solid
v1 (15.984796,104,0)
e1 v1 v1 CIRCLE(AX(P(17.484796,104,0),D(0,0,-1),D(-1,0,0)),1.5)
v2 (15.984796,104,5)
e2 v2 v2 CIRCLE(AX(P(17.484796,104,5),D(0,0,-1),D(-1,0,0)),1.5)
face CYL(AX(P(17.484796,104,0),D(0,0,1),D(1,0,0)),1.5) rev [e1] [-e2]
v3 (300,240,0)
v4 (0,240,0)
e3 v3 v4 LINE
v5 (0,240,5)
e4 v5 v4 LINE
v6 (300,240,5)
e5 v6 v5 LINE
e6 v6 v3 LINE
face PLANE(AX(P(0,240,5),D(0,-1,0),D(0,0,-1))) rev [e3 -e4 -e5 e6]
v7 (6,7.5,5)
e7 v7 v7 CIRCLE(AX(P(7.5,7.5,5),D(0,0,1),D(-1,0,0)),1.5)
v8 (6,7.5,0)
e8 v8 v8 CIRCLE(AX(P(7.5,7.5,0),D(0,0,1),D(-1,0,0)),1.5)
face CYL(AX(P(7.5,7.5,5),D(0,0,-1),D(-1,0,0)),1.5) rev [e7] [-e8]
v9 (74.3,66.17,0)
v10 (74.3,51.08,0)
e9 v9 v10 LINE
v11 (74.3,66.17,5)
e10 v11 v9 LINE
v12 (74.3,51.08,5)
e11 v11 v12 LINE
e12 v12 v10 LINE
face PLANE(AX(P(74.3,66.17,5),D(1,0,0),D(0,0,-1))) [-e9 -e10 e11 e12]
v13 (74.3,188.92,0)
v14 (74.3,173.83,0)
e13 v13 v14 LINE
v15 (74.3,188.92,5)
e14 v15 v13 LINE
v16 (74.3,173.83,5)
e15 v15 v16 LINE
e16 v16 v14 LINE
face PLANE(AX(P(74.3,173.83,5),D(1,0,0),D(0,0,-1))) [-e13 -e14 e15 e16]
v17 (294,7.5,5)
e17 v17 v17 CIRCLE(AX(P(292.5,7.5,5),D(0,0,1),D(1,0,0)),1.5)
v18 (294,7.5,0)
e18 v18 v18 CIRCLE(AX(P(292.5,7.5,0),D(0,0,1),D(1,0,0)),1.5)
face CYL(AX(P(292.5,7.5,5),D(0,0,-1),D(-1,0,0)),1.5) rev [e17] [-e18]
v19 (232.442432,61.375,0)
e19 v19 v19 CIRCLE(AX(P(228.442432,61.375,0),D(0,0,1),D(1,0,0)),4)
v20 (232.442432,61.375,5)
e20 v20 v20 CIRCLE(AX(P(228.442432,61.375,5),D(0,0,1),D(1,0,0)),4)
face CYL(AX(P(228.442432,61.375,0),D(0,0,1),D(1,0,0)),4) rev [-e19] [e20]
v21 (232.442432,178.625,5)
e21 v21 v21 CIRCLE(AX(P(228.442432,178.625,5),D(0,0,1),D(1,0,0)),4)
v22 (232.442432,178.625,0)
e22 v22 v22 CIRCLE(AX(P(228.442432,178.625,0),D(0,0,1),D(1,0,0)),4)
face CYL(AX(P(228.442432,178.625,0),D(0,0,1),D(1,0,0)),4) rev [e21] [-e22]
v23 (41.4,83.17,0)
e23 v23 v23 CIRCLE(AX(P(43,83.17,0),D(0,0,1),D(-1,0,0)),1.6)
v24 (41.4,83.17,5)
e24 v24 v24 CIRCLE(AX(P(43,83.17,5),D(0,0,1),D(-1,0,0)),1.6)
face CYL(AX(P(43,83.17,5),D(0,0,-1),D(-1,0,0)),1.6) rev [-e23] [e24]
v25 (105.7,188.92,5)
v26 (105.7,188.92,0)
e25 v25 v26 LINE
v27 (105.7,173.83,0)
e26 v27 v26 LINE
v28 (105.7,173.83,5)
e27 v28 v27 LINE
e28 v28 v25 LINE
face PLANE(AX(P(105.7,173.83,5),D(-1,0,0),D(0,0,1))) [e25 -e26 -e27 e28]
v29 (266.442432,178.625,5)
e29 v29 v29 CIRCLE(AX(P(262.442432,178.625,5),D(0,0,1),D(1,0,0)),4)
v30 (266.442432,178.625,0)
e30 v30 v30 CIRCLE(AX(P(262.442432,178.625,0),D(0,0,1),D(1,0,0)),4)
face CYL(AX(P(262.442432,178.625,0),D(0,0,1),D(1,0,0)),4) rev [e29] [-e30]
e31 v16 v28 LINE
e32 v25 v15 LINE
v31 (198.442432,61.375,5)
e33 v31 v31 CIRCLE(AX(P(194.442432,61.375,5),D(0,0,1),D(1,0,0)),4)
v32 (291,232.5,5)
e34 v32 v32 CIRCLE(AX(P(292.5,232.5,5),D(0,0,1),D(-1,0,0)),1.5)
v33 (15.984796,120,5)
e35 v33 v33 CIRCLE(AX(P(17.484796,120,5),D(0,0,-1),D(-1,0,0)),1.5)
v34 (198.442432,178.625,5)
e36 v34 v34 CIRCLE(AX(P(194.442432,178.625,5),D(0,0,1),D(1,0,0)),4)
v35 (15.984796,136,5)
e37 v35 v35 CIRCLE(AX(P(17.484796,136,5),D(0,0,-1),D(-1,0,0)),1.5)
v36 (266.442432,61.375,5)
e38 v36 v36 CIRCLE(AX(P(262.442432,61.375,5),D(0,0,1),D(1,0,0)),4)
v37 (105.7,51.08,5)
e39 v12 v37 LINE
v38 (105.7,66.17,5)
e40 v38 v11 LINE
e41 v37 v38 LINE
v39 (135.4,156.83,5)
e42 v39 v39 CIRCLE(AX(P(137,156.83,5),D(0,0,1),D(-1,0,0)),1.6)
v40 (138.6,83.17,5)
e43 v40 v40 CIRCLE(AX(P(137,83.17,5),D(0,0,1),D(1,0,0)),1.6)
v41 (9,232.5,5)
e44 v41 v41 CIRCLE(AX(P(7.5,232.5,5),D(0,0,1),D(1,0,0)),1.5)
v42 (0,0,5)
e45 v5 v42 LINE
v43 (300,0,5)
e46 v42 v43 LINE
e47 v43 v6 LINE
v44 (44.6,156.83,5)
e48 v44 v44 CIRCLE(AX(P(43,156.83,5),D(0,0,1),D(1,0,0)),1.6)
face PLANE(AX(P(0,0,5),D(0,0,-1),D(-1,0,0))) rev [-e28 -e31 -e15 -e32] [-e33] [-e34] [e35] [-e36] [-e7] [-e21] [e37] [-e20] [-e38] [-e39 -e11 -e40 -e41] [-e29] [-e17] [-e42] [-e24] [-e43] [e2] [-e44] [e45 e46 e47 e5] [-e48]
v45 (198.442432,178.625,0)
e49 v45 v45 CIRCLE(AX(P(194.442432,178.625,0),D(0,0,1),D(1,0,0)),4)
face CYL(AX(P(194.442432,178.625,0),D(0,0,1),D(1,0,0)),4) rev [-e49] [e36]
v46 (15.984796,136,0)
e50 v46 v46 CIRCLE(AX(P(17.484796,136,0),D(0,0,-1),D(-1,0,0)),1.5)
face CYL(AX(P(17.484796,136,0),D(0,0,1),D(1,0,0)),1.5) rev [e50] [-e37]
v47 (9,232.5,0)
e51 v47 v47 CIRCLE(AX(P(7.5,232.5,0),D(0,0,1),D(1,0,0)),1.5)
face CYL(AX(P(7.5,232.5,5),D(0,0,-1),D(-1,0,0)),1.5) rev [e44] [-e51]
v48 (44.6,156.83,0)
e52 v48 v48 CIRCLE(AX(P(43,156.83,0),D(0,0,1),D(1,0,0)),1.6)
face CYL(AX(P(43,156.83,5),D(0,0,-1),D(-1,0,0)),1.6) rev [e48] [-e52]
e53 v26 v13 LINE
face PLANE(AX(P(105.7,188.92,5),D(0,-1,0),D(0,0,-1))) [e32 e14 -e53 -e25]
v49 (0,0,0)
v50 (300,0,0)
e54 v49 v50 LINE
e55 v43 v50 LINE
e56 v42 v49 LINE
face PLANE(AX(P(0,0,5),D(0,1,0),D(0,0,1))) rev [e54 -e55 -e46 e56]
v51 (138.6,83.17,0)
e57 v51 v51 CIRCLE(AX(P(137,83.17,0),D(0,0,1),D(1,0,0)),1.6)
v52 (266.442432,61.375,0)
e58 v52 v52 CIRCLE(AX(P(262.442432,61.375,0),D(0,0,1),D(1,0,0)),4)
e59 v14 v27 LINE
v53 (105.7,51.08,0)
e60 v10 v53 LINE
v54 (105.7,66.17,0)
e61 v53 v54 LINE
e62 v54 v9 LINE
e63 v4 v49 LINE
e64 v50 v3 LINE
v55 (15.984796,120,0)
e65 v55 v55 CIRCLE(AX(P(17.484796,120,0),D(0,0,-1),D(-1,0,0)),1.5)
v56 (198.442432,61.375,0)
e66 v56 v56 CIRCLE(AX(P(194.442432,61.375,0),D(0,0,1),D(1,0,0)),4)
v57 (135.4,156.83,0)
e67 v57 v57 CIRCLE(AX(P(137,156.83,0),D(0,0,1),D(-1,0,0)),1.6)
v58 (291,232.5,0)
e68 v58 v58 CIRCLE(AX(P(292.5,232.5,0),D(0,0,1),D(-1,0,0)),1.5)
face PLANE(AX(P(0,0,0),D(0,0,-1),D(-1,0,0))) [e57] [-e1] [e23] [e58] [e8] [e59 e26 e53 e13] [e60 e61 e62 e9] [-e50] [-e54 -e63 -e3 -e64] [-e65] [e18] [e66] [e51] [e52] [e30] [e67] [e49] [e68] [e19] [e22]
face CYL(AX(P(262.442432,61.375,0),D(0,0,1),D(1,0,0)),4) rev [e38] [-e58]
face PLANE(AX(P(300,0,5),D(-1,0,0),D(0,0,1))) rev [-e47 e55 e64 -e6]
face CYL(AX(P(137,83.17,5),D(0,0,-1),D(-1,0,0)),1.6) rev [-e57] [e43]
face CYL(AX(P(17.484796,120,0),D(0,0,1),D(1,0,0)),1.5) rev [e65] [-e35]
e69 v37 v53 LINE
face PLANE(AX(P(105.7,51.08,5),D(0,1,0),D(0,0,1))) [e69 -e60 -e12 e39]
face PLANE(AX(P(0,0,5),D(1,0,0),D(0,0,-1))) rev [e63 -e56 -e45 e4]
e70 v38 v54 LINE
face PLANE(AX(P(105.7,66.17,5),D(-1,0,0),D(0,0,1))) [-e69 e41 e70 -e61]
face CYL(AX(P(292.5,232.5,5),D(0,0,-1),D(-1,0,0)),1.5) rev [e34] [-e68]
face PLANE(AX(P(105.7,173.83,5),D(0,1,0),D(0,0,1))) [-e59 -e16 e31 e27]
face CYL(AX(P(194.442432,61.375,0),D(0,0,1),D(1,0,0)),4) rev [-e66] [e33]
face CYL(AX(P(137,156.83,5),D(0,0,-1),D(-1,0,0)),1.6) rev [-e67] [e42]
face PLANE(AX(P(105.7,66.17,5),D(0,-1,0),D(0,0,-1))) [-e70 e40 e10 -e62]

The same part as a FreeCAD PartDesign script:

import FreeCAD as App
import Part
import Sketcher
from FreeCAD import Vector

doc = App.newDocument("Part")
body = doc.addObject("PartDesign::Body", "Body")

# Sketch on XY plane
sketch1 = body.newObject("Sketcher::SketchObject", "Sketch")
sketch1.AttachmentSupport = (doc.getObject("XY_Plane"), [""])
sketch1.MapMode = "FlatFace"
sketch1.addGeometry([
    Part.LineSegment(Vector(0, 240, 0), Vector(0, 0, 0)),  # 0
    Part.LineSegment(Vector(0, 0, 0), Vector(300, 0, 0)),  # 1
    Part.LineSegment(Vector(300, 0, 0), Vector(300, 240, 0)),  # 2
    Part.LineSegment(Vector(300, 240, 0), Vector(0, 240, 0)),  # 3
    Part.Circle(Vector(7.5, 7.5, 0), Vector(0, 0, 1), 1.5),  # 4
    Part.LineSegment(Vector(105.7, 51.1, 0), Vector(74.3, 51.1, 0)),  # 5
    Part.LineSegment(Vector(74.3, 51.1, 0), Vector(74.3, 66.2, 0)),  # 6
    Part.LineSegment(Vector(74.3, 66.2, 0), Vector(105.7, 66.2, 0)),  # 7
    Part.LineSegment(Vector(105.7, 66.2, 0), Vector(105.7, 51.1, 0)),  # 8
    Part.Circle(Vector(43, 83.2, 0), Vector(0, 0, 1), 1.6),  # 9
    Part.Circle(Vector(137, 83.2, 0), Vector(0, 0, 1), 1.6),  # 10
    Part.Circle(Vector(292.5, 7.5, 0), Vector(0, 0, 1), 1.5),  # 11
    Part.Circle(Vector(43, 156.8, 0), Vector(0, 0, 1), 1.6),  # 12
    Part.Circle(Vector(137, 156.8, 0), Vector(0, 0, 1), 1.6),  # 13
    Part.Circle(Vector(7.5, 232.5, 0), Vector(0, 0, 1), 1.5),  # 14
    Part.LineSegment(Vector(105.7, 173.8, 0), Vector(74.3, 173.8, 0)),  # 15
    Part.LineSegment(Vector(74.3, 173.8, 0), Vector(74.3, 188.9, 0)),  # 16
    Part.LineSegment(Vector(74.3, 188.9, 0), Vector(105.7, 188.9, 0)),  # 17
    Part.LineSegment(Vector(105.7, 188.9, 0), Vector(105.7, 173.8, 0)),  # 18
    Part.Circle(Vector(292.5, 232.5, 0), Vector(0, 0, 1), 1.5),  # 19
], False)
sketch1.addConstraint([
    Sketcher.Constraint("Coincident", 0, 2, 1, 1),
    Sketcher.Constraint("Coincident", 1, 2, 2, 1),
    Sketcher.Constraint("Coincident", 2, 2, 3, 1),
    Sketcher.Constraint("Coincident", 3, 2, 0, 1),
    Sketcher.Constraint("Coincident", 5, 2, 6, 1),
    Sketcher.Constraint("Coincident", 6, 2, 7, 1),
    Sketcher.Constraint("Coincident", 7, 2, 8, 1),
    Sketcher.Constraint("Coincident", 8, 2, 5, 1),
    Sketcher.Constraint("Coincident", 15, 2, 16, 1),
    Sketcher.Constraint("Coincident", 16, 2, 17, 1),
    Sketcher.Constraint("Coincident", 17, 2, 18, 1),
    Sketcher.Constraint("Coincident", 18, 2, 15, 1),
    Sketcher.Constraint("Vertical", 0),
    Sketcher.Constraint("Horizontal", 1),
    Sketcher.Constraint("Vertical", 2),
    Sketcher.Constraint("Horizontal", 3),
    Sketcher.Constraint("Horizontal", 5),
    Sketcher.Constraint("Vertical", 6),
    Sketcher.Constraint("Horizontal", 7),
    Sketcher.Constraint("Vertical", 8),
    Sketcher.Constraint("Horizontal", 15),
    Sketcher.Constraint("Vertical", 16),
    Sketcher.Constraint("Horizontal", 17),
    Sketcher.Constraint("Vertical", 18),
    Sketcher.Constraint("Coincident", 0, 2, -1, 1),
    Sketcher.Constraint("Equal", 9, 10),
    Sketcher.Constraint("Equal", 4, 11),
    Sketcher.Constraint("Equal", 10, 12),
    Sketcher.Constraint("Equal", 12, 13),
    Sketcher.Constraint("Equal", 11, 14),
    Sketcher.Constraint("Equal", 14, 19),
    Sketcher.Constraint("Horizontal", 9, 3, 10, 3),
    Sketcher.Constraint("Horizontal", 4, 3, 11, 3),
    Sketcher.Constraint("Horizontal", 12, 3, 13, 3),
    Sketcher.Constraint("Horizontal", 14, 3, 19, 3),
    Sketcher.Constraint("Vertical", 9, 3, 12, 3),
    Sketcher.Constraint("Vertical", 10, 3, 13, 3),
    Sketcher.Constraint("Vertical", 4, 3, 14, 3),
    Sketcher.Constraint("Vertical", 11, 3, 19, 3),
    Sketcher.Constraint("Vertical", 6, 2, 15, 2),
    Sketcher.Constraint("Vertical", 8, 2, 17, 2),
    Sketcher.Constraint("Equal", 8, 16),
    Sketcher.Constraint("Diameter", 4, 3.0),
    Sketcher.Constraint("Diameter", 9, 3.2),
    Sketcher.Constraint("DistanceX", 1, 1, 1, 2, 300.0),
    Sketcher.Constraint("DistanceY", 0, 2, 0, 1, 240.0),
    Sketcher.Constraint("DistanceX", 5, 2, 5, 1, 31.4),
    Sketcher.Constraint("DistanceX", -1, 1, 9, 3, 43.0),
    Sketcher.Constraint("DistanceX", -1, 1, 10, 3, 137.0),
    Sketcher.Constraint("DistanceX", 4, 3, 11, 3, 285.0),
    Sketcher.Constraint("DistanceY", 4, 3, 14, 3, 225.0),
    Sketcher.Constraint("DistanceY", 6, 2, 9, 3, 17.0),
    Sketcher.Constraint("DistanceY", 12, 3, 15, 2, 17.0),
    Sketcher.Constraint("DistanceY", 6, 1, 6, 2, 15.09),
    Sketcher.Constraint("DistanceX", -1, 1, 4, 3, 7.5),
    Sketcher.Constraint("DistanceY", -1, 1, 4, 3, 7.5),
    Sketcher.Constraint("DistanceX", -1, 1, 5, 2, 74.3),
    Sketcher.Constraint("DistanceY", -1, 1, 9, 3, 83.17),
    Sketcher.Constraint("DistanceY", -1, 1, 12, 3, 156.83),
])
pad1 = body.newObject("PartDesign::Pad", "Pad")
pad1.Profile = sketch1
pad1.Length = 5

# Sketch on XY plane
sketch2 = body.newObject("Sketcher::SketchObject", "Sketch001")
sketch2.AttachmentSupport = (doc.getObject("XY_Plane"), [""])
sketch2.MapMode = "FlatFace"
sketch2.AttachmentOffset = App.Placement(Vector(0, 0, 5), App.Rotation())
sketch2.addGeometry([
    Part.Circle(Vector(17.5, 136, 0), Vector(0, 0, 1), 1.5),
    Part.Circle(Vector(17.5, 120, 0), Vector(0, 0, 1), 1.5),
    Part.Circle(Vector(17.5, 104, 0), Vector(0, 0, 1), 1.5),
], False)
sketch2.addConstraint([
    Sketcher.Constraint("Equal", 0, 1),
    Sketcher.Constraint("Equal", 1, 2),
    Sketcher.Constraint("Vertical", 0, 3, 1, 3),
    Sketcher.Constraint("Vertical", 1, 3, 2, 3),
    Sketcher.Constraint("Diameter", 0, 3.0),
    Sketcher.Constraint("DistanceY", -1, 1, 0, 3, 136.0),
    Sketcher.Constraint("DistanceY", -1, 1, 1, 3, 120.0),
    Sketcher.Constraint("DistanceY", -1, 1, 2, 3, 104.0),
    Sketcher.Constraint("DistanceX", -1, 1, 0, 3, 17.484796),
])
pocket1 = body.newObject("PartDesign::Pocket", "Pocket")
pocket1.Profile = sketch2
pocket1.Type = "ThroughAll"

# Sketch on XY plane
sketch3 = body.newObject("Sketcher::SketchObject", "Sketch002")
sketch3.AttachmentSupport = (doc.getObject("XY_Plane"), [""])
sketch3.MapMode = "FlatFace"
sketch3.AttachmentOffset = App.Placement(Vector(0, 0, 5), App.Rotation())
sketch3.addGeometry([
    Part.Circle(Vector(194.4, 178.6, 0), Vector(0, 0, 1), 4),
    Part.Circle(Vector(228.4, 178.6, 0), Vector(0, 0, 1), 4),
    Part.Circle(Vector(262.4, 178.6, 0), Vector(0, 0, 1), 4),
], False)
sketch3.addConstraint([
    Sketcher.Constraint("Equal", 0, 1),
    Sketcher.Constraint("Equal", 1, 2),
    Sketcher.Constraint("Horizontal", 0, 3, 1, 3),
    Sketcher.Constraint("Horizontal", 1, 3, 2, 3),
    Sketcher.Constraint("Diameter", 0, 8.0),
    Sketcher.Constraint("DistanceX", 0, 3, 1, 3, 34.0),
    Sketcher.Constraint("DistanceX", 1, 3, 2, 3, 34.0),
    Sketcher.Constraint("DistanceY", -1, 1, 0, 3, 178.625),
    Sketcher.Constraint("DistanceX", -1, 1, 0, 3, 194.442432),
])
pocket2 = body.newObject("PartDesign::Pocket", "Pocket001")
pocket2.Profile = sketch3
pocket2.Type = "ThroughAll"

# Sketch on XY plane
sketch4 = body.newObject("Sketcher::SketchObject", "Sketch003")
sketch4.AttachmentSupport = (doc.getObject("XY_Plane"), [""])
sketch4.MapMode = "FlatFace"
sketch4.AttachmentOffset = App.Placement(Vector(0, 0, 5), App.Rotation())
sketch4.addGeometry([
    Part.Circle(Vector(194.4, 61.4, 0), Vector(0, 0, 1), 4),
    Part.Circle(Vector(228.4, 61.4, 0), Vector(0, 0, 1), 4),
    Part.Circle(Vector(262.4, 61.4, 0), Vector(0, 0, 1), 4),
], False)
sketch4.addConstraint([
    Sketcher.Constraint("Equal", 0, 1),
    Sketcher.Constraint("Equal", 1, 2),
    Sketcher.Constraint("Horizontal", 0, 3, 1, 3),
    Sketcher.Constraint("Horizontal", 1, 3, 2, 3),
    Sketcher.Constraint("Diameter", 0, 8.0),
    Sketcher.Constraint("DistanceX", 0, 3, 1, 3, 34.0),
    Sketcher.Constraint("DistanceX", 1, 3, 2, 3, 34.0),
    Sketcher.Constraint("DistanceY", -1, 1, 0, 3, 61.375),
    Sketcher.Constraint("DistanceX", -1, 1, 0, 3, 194.442432),
])
pocket3 = body.newObject("PartDesign::Pocket", "Pocket002")
pocket3.Profile = sketch4
pocket3.Type = "ThroughAll"

doc.recompute()
